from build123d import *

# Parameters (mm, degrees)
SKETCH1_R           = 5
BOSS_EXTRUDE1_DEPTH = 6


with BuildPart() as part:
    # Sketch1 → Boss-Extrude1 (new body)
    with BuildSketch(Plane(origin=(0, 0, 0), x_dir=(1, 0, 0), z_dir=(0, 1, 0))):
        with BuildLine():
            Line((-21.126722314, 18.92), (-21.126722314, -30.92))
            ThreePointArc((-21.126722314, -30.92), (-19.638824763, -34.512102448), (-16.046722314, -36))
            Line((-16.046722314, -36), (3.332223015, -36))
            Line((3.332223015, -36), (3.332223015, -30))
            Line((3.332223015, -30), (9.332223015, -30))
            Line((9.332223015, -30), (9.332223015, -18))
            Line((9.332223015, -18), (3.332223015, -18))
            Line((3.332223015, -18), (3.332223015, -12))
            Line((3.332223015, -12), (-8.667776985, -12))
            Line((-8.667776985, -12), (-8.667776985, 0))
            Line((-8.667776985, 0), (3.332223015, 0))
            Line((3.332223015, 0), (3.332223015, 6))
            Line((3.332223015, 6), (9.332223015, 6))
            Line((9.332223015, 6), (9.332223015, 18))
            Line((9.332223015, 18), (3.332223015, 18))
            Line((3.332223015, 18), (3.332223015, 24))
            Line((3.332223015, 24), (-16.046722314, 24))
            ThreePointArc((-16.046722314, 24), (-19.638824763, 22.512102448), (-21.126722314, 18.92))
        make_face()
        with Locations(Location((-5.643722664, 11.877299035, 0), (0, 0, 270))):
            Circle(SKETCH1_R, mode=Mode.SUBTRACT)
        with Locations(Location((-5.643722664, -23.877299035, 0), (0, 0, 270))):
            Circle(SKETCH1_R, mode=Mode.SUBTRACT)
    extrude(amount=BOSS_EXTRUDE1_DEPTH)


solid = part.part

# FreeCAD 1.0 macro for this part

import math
import FreeCAD as App
import Part
import Sketcher
from FreeCAD import Vector

doc = App.newDocument("Part")
body = doc.addObject("PartDesign::Body", "Body")

# Sketch on XZ plane
sketch1 = doc.addObject("Sketcher::SketchObject", "Sketch")
body.addObject(sketch1)
sketch1.AttachmentSupport = (doc.XZ_Plane, [""])
sketch1.MapMode = "FlatFace"
sketch1.addGeometry([
    Part.LineSegment(Vector(-21, -19, 0), Vector(-21, 31, 0)),  # 0
    Part.ArcOfCircle(Part.Circle(Vector(-16, 31, 0), Vector(0, 0, 1), 5), math.radians(90), math.radians(180)),  # 1
    Part.LineSegment(Vector(-16, 36, 0), Vector(3, 36, 0)),  # 2
    Part.LineSegment(Vector(3, 36, 0), Vector(3, 30, 0)),  # 3
    Part.LineSegment(Vector(3, 30, 0), Vector(9, 30, 0)),  # 4
    Part.LineSegment(Vector(9, 30, 0), Vector(9, 18, 0)),  # 5
    Part.LineSegment(Vector(9, 18, 0), Vector(3, 18, 0)),  # 6
    Part.LineSegment(Vector(3, 18, 0), Vector(3, 12, 0)),  # 7
    Part.LineSegment(Vector(3, 12, 0), Vector(-9, 12, 0)),  # 8
    Part.LineSegment(Vector(-9, 12, 0), Vector(-9, 0, 0)),  # 9
    Part.LineSegment(Vector(-9, 0, 0), Vector(3, 0, 0)),  # 10
    Part.LineSegment(Vector(3, 0, 0), Vector(3, -6, 0)),  # 11
    Part.LineSegment(Vector(3, -6, 0), Vector(9, -6, 0)),  # 12
    Part.LineSegment(Vector(9, -6, 0), Vector(9, -18, 0)),  # 13
    Part.LineSegment(Vector(9, -18, 0), Vector(3, -18, 0)),  # 14
    Part.LineSegment(Vector(3, -18, 0), Vector(3, -24, 0)),  # 15
    Part.LineSegment(Vector(3, -24, 0), Vector(-16, -24, 0)),  # 16
    Part.ArcOfCircle(Part.Circle(Vector(-16, -19, 0), Vector(0, 0, 1), 5), math.radians(180), math.radians(270)),  # 17
    Part.Circle(Vector(-6, 24, 0), Vector(0, 0, 1), 5),  # 18
    Part.Circle(Vector(-6, -12, 0), Vector(0, 0, 1), 5),  # 19
], False)
sketch1.addConstraint([
    Sketcher.Constraint("Tangent", 0, 2, 1, 2),
    Sketcher.Constraint("Tangent", 1, 1, 2, 1),
    Sketcher.Constraint("Coincident", 2, 2, 3, 1),
    Sketcher.Constraint("Coincident", 3, 2, 4, 1),
    Sketcher.Constraint("Coincident", 4, 2, 5, 1),
    Sketcher.Constraint("Coincident", 5, 2, 6, 1),
    Sketcher.Constraint("Coincident", 6, 2, 7, 1),
    Sketcher.Constraint("Coincident", 7, 2, 8, 1),
    Sketcher.Constraint("Coincident", 8, 2, 9, 1),
    Sketcher.Constraint("Coincident", 9, 2, 10, 1),
    Sketcher.Constraint("Coincident", 10, 2, 11, 1),
    Sketcher.Constraint("Coincident", 11, 2, 12, 1),
    Sketcher.Constraint("Coincident", 12, 2, 13, 1),
    Sketcher.Constraint("Coincident", 13, 2, 14, 1),
    Sketcher.Constraint("Coincident", 14, 2, 15, 1),
    Sketcher.Constraint("Coincident", 15, 2, 16, 1),
    Sketcher.Constraint("Tangent", 16, 2, 17, 2),
    Sketcher.Constraint("Tangent", 17, 1, 0, 1),
    Sketcher.Constraint("Vertical", 0),
    Sketcher.Constraint("Horizontal", 2),
    Sketcher.Constraint("Vertical", 3),
    Sketcher.Constraint("Horizontal", 4),
    Sketcher.Constraint("Vertical", 5),
    Sketcher.Constraint("Horizontal", 6),
    Sketcher.Constraint("Vertical", 7),
    Sketcher.Constraint("Horizontal", 8),
    Sketcher.Constraint("Vertical", 9),
    Sketcher.Constraint("Horizontal", 10),
    Sketcher.Constraint("Vertical", 11),
    Sketcher.Constraint("Horizontal", 12),
    Sketcher.Constraint("Vertical", 13),
    Sketcher.Constraint("Horizontal", 14),
    Sketcher.Constraint("Vertical", 15),
    Sketcher.Constraint("Horizontal", 16),
    Sketcher.Constraint("Equal", 1, 17),
    Sketcher.Constraint("Equal", 18, 19),
    Sketcher.Constraint("Symmetric", 5, 2, 13, 2, -1),
    Sketcher.Constraint("PointOnObject", 9, 2, -1),
    Sketcher.Constraint("Vertical", 18, 3, 19, 3),
    Sketcher.Constraint("Vertical", 3, 2, 6, 2),
    Sketcher.Constraint("Vertical", 7, 2, 10, 2),
    Sketcher.Constraint("Vertical", 11, 2, 14, 2),
    Sketcher.Constraint("Equal", 14, 3),
    Sketcher.Constraint("Equal", 10, 5),
    Sketcher.Constraint("Equal", 3, 7),
    Sketcher.Constraint("Equal", 5, 9),
    Sketcher.Constraint("Equal", 7, 11),
    Sketcher.Constraint("Equal", 11, 15),
    Sketcher.Constraint("Diameter", 18, 10.0),
    Sketcher.Constraint("DistanceX", 4, 1, 4, 2, 6.0),
    Sketcher.Constraint("DistanceX", 8, 2, 8, 1, 12.0),
    Sketcher.Constraint("Radius", 1, 5.08),
    Sketcher.Constraint("DistanceX", 1, 3, 18, 3, 10.403),
    Sketcher.Constraint("DistanceY", -1, 1, 18, 3, 23.877299),
    Sketcher.Constraint("DistanceY", 19, 3, -1, 1, 11.877299),
    Sketcher.Constraint("DistanceX", 2, 1, 2, 2, 19.378945),
    Sketcher.Constraint("DistanceX", 1, 3, -1, 1, 16.046722),
])
pad1 = doc.addObject("PartDesign::Pad", "Pad")
body.addObject(pad1)
pad1.Profile = sketch1
pad1.Length = 6
pad1.Reversed = True

doc.recompute()
